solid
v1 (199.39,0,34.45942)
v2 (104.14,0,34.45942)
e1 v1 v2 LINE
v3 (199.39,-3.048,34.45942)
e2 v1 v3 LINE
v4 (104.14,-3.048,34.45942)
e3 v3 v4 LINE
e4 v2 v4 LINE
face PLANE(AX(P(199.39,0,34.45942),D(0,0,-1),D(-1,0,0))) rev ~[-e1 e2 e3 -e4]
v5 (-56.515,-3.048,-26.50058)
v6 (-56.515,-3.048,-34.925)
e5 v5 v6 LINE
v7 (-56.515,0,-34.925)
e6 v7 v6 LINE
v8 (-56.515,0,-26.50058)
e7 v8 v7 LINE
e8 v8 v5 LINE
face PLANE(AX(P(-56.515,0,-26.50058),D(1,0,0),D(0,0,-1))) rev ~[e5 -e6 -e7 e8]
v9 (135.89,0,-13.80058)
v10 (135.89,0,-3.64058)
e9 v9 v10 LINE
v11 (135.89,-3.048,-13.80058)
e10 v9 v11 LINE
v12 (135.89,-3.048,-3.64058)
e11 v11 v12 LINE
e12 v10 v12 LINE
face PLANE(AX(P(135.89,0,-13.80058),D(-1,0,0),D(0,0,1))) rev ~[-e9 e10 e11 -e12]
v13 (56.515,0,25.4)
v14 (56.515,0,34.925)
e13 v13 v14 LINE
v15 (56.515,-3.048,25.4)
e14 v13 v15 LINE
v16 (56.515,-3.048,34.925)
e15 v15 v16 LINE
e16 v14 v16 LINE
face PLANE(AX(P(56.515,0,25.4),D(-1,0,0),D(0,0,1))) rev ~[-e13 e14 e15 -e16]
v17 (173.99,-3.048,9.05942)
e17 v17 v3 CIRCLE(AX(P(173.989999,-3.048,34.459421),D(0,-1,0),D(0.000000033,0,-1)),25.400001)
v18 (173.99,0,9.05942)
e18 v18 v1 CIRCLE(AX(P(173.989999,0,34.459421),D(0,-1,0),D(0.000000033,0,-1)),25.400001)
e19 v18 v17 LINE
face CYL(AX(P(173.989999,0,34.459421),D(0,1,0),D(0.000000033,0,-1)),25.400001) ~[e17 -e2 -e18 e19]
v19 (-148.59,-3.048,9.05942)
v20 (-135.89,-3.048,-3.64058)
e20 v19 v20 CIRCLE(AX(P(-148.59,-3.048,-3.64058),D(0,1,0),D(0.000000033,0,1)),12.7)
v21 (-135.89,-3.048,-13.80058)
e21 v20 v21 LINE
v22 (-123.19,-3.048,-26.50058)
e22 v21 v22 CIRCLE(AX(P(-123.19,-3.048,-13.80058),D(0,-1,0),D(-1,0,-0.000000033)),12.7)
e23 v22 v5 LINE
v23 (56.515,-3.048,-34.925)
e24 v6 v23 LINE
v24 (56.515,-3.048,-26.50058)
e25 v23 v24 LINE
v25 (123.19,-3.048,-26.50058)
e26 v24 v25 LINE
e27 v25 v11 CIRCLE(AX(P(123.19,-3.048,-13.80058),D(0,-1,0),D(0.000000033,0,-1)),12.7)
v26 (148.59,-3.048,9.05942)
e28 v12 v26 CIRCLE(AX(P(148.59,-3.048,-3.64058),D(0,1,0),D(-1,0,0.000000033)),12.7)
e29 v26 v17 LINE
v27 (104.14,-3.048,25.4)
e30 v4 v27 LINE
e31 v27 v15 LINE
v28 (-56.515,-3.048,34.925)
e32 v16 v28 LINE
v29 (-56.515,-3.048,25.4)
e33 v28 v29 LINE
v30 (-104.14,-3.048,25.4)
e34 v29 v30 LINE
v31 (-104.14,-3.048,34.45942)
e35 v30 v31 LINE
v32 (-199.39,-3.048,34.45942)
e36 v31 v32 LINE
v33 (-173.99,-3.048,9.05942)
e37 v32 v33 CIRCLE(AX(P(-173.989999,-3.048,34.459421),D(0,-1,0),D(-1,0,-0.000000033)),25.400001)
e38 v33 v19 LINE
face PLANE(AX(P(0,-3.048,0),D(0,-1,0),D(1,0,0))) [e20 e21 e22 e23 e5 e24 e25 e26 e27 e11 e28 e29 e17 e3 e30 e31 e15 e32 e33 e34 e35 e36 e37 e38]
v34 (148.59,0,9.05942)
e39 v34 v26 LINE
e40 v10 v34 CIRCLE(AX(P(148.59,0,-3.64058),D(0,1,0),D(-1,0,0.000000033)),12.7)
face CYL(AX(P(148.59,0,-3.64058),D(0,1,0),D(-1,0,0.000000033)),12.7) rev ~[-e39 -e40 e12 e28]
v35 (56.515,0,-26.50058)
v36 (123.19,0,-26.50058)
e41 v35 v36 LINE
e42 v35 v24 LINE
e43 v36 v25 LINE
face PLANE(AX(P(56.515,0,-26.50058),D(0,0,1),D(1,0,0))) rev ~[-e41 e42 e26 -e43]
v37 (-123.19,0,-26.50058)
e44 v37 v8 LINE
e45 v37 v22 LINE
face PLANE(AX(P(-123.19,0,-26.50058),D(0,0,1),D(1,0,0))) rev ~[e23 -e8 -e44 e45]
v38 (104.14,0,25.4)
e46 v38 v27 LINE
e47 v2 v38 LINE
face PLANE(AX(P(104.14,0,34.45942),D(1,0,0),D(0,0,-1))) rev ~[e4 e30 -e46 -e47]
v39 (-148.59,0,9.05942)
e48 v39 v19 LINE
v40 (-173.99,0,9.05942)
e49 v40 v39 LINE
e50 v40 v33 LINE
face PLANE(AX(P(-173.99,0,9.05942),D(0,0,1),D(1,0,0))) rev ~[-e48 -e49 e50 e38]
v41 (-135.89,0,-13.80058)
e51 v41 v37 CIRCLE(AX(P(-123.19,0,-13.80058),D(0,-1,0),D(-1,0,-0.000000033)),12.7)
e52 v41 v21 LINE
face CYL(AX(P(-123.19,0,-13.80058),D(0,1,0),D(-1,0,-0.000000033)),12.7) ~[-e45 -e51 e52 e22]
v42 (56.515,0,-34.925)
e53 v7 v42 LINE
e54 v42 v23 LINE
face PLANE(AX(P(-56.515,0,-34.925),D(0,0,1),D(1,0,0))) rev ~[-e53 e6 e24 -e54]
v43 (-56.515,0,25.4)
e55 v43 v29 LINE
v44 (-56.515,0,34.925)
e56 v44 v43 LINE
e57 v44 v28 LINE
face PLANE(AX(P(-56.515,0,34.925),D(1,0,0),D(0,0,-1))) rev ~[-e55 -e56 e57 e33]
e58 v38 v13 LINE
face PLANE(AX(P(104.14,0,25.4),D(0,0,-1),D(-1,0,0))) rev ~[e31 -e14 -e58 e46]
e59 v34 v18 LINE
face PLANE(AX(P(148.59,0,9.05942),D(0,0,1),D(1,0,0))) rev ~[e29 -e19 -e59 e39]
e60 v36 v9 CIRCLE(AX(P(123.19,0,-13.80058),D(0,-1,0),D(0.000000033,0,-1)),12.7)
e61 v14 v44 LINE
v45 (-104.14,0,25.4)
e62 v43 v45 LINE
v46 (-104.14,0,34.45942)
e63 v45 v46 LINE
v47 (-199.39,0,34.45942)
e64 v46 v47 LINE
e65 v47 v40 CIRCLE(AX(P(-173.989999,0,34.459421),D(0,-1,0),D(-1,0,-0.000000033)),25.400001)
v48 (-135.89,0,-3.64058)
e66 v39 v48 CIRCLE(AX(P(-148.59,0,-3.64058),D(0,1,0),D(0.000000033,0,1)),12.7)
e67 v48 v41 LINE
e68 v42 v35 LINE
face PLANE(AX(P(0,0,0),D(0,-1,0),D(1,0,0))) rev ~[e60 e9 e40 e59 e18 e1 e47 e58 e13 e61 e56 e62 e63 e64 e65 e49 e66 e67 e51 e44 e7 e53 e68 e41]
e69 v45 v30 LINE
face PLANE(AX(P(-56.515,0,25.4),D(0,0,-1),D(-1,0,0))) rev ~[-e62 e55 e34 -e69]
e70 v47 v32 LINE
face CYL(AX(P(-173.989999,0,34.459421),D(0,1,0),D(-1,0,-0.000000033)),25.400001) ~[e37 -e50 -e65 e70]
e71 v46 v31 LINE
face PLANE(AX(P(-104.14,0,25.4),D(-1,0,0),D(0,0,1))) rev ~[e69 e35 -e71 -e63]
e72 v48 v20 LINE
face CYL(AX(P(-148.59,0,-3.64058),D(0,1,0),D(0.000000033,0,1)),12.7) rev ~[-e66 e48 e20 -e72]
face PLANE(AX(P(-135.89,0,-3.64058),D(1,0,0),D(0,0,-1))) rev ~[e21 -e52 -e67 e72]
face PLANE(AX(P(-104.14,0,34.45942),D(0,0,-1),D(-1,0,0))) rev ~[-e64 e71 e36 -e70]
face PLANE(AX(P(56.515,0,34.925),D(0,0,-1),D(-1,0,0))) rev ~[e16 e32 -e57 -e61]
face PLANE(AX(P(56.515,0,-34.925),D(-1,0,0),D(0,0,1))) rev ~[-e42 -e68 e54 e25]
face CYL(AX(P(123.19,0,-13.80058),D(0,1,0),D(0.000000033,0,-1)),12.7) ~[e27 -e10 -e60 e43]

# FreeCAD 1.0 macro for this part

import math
import FreeCAD as App
import Part
import Sketcher
from FreeCAD import Vector
Q = App.Units.Quantity

doc = App.newDocument("Part")
params = doc.addObject("Spreadsheet::Sheet", "Params")
for row, (alias, value) in enumerate([
    ("sketch1_radius", "1 in"),
    ("sketch1_radius2", "0.5 in"),
    ("sketch1_width", "1 in"),
    ("sketch1_height", "0.4 in"),
    ("sketch1_width2", "4.45 in"),
    ("pad1_length", "0.12 in"),
], start=1):
    params.set(f"A{row}", alias)
    params.set(f"B{row}", "=" + value)
    params.setAlias(f"B{row}", alias)

body = doc.addObject("PartDesign::Body", "Body")

# Sketch on XZ plane
sketch1 = body.newObject("Sketcher::SketchObject", "Sketch")
sketch1.AttachmentSupport = (doc.getObject("XZ_Plane"), [""])
sketch1.MapMode = "FlatFace"
sketch1.addGeometry([
    Part.LineSegment(Vector(-56.515, -34.925, 0), Vector(56.515, -34.925, 0)),  # 0
    Part.LineSegment(Vector(56.515, -34.925, 0), Vector(56.515, -26.50058, 0)),  # 1
    Part.LineSegment(Vector(56.515, -26.50058, 0), Vector(123.19, -26.50058, 0)),  # 2
    Part.ArcOfCircle(Part.Circle(Vector(123.19, -13.80058, 0), Vector(0, 0, 1), 12.7), math.radians(-89.999998), math.radians(-0.000002)),  # 3
    Part.LineSegment(Vector(135.89, -13.80058, 0), Vector(135.89, -3.64058, 0)),  # 4
    Part.ArcOfCircle(Part.Circle(Vector(148.59, -3.64058, 0), Vector(0, 0, 1), 12.7), math.radians(90.000002), math.radians(179.999998)),  # 5
    Part.LineSegment(Vector(148.59, 9.05942, 0), Vector(173.99, 9.05942, 0)),  # 6
    Part.ArcOfCircle(Part.Circle(Vector(173.989999, 34.459421, 0), Vector(0, 0, 1), 25.400001), math.radians(-89.999998), math.radians(-0.000002)),  # 7
    Part.LineSegment(Vector(199.39, 34.45942, 0), Vector(104.14, 34.45942, 0)),  # 8
    Part.LineSegment(Vector(104.14, 34.45942, 0), Vector(104.14, 25.4, 0)),  # 9
    Part.LineSegment(Vector(104.14, 25.4, 0), Vector(56.515, 25.4, 0)),  # 10
    Part.LineSegment(Vector(56.515, 25.4, 0), Vector(56.515, 34.925, 0)),  # 11
    Part.LineSegment(Vector(56.515, 34.925, 0), Vector(-56.515, 34.925, 0)),  # 12
    Part.LineSegment(Vector(-56.515, 34.925, 0), Vector(-56.515, 25.4, 0)),  # 13
    Part.LineSegment(Vector(-56.515, 25.4, 0), Vector(-104.14, 25.4, 0)),  # 14
    Part.LineSegment(Vector(-104.14, 25.4, 0), Vector(-104.14, 34.45942, 0)),  # 15
    Part.LineSegment(Vector(-104.14, 34.45942, 0), Vector(-199.39, 34.45942, 0)),  # 16
    Part.ArcOfCircle(Part.Circle(Vector(-173.989999, 34.459421, 0), Vector(0, 0, 1), 25.400001), math.radians(-179.999998), math.radians(-90.000002)),  # 17
    Part.LineSegment(Vector(-173.99, 9.05942, 0), Vector(-148.59, 9.05942, 0)),  # 18
    Part.ArcOfCircle(Part.Circle(Vector(-148.59, -3.64058, 0), Vector(0, 0, 1), 12.7), math.radians(0.000002), math.radians(89.999998)),  # 19
    Part.LineSegment(Vector(-135.89, -3.64058, 0), Vector(-135.89, -13.80058, 0)),  # 20
    Part.ArcOfCircle(Part.Circle(Vector(-123.19, -13.80058, 0), Vector(0, 0, 1), 12.7), math.radians(-179.999998), math.radians(-90.000002)),  # 21
    Part.LineSegment(Vector(-123.19, -26.50058, 0), Vector(-56.515, -26.50058, 0)),  # 22
    Part.LineSegment(Vector(-56.515, -26.50058, 0), Vector(-56.515, -34.925, 0)),  # 23
], False)
sketch1.addConstraint([
    Sketcher.Constraint("Coincident", 0, 2, 1, 1),
    Sketcher.Constraint("Coincident", 1, 2, 2, 1),
    Sketcher.Constraint("Tangent", 2, 2, 3, 1),
    Sketcher.Constraint("Tangent", 3, 2, 4, 1),
    Sketcher.Constraint("Tangent", 4, 2, 5, 2),
    Sketcher.Constraint("Tangent", 5, 1, 6, 1),
    Sketcher.Constraint("Tangent", 6, 2, 7, 1),
    Sketcher.Constraint("Coincident", 7, 2, 8, 1),
    Sketcher.Constraint("Coincident", 8, 2, 9, 1),
    Sketcher.Constraint("Coincident", 9, 2, 10, 1),
    Sketcher.Constraint("Coincident", 10, 2, 11, 1),
    Sketcher.Constraint("Coincident", 11, 2, 12, 1),
    Sketcher.Constraint("Coincident", 12, 2, 13, 1),
    Sketcher.Constraint("Coincident", 13, 2, 14, 1),
    Sketcher.Constraint("Coincident", 14, 2, 15, 1),
    Sketcher.Constraint("Coincident", 15, 2, 16, 1),
    Sketcher.Constraint("Coincident", 16, 2, 17, 1),
    Sketcher.Constraint("Tangent", 17, 2, 18, 1),
    Sketcher.Constraint("Tangent", 18, 2, 19, 2),
    Sketcher.Constraint("Tangent", 19, 1, 20, 1),
    Sketcher.Constraint("Tangent", 20, 2, 21, 1),
    Sketcher.Constraint("Tangent", 21, 2, 22, 1),
    Sketcher.Constraint("Coincident", 22, 2, 23, 1),
    Sketcher.Constraint("Coincident", 23, 2, 0, 1),
    Sketcher.Constraint("Horizontal", 0),
    Sketcher.Constraint("Vertical", 1),
    Sketcher.Constraint("Horizontal", 2),
    Sketcher.Constraint("Vertical", 4),
    Sketcher.Constraint("Horizontal", 6),
    Sketcher.Constraint("Horizontal", 8),
    Sketcher.Constraint("Vertical", 9),
    Sketcher.Constraint("Horizontal", 10),
    Sketcher.Constraint("Vertical", 11),
    Sketcher.Constraint("Horizontal", 12),
    Sketcher.Constraint("Vertical", 13),
    Sketcher.Constraint("Horizontal", 14),
    Sketcher.Constraint("Vertical", 15),
    Sketcher.Constraint("Horizontal", 16),
    Sketcher.Constraint("Horizontal", 18),
    Sketcher.Constraint("Vertical", 20),
    Sketcher.Constraint("Horizontal", 22),
    Sketcher.Constraint("Vertical", 23),
    Sketcher.Constraint("Equal", 3, 5),
    Sketcher.Constraint("Equal", 7, 17),
    Sketcher.Constraint("Equal", 5, 19),
    Sketcher.Constraint("Equal", 19, 21),
    Sketcher.Constraint("Symmetric", 0, 2, 12, 2, -1, 1),
    Sketcher.Constraint("Symmetric", 7, 3, 17, 3, -2),
    Sketcher.Constraint("Symmetric", 3, 3, 21, 3, -2),
    Sketcher.Constraint("Symmetric", 10, 2, 13, 2, -2),
    Sketcher.Constraint("Symmetric", 8, 2, 15, 2, -2),
    Sketcher.Constraint("Horizontal", 17, 3, 7, 2),
    Sketcher.Constraint("Vertical", 13, 2, 22, 2),
    Sketcher.Constraint("Radius", 7, Q("1 in")),
    Sketcher.Constraint("Radius", 3, Q("0.5 in")),
    Sketcher.Constraint("DistanceX", 6, 1, 6, 2, Q("1 in")),
    Sketcher.Constraint("DistanceY", 4, 1, 4, 2, Q("0.4 in")),
    Sketcher.Constraint("DistanceY", -1, 1, 9, 2, Q("1 in")),
    Sketcher.Constraint("DistanceX", 0, 1, 0, 2, Q("4.45 in")),
    Sketcher.Constraint("DistanceX", 8, 2, 8, 1, Q("3.75 in")),
    Sketcher.Constraint("DistanceX", -1, 1, 8, 2, Q("4.1 in")),
    Sketcher.Constraint("DistanceY", 11, 1, 11, 2, Q("0.375 in")),
    Sketcher.Constraint("DistanceY", 1, 1, 1, 2, Q("8.42442 mm")),
])
sketch1.setExpression("Constraints[53]", "Params.sketch1_radius")
sketch1.setExpression("Constraints[54]", "Params.sketch1_radius2")
sketch1.setExpression("Constraints[55]", "Params.sketch1_width")
sketch1.setExpression("Constraints[56]", "Params.sketch1_height")
sketch1.setExpression("Constraints[58]", "Params.sketch1_width2")
pad1 = body.newObject("PartDesign::Pad", "Pad")
pad1.Profile = sketch1
pad1.setExpression("Length", "Params.pad1_length")

doc.recompute()
